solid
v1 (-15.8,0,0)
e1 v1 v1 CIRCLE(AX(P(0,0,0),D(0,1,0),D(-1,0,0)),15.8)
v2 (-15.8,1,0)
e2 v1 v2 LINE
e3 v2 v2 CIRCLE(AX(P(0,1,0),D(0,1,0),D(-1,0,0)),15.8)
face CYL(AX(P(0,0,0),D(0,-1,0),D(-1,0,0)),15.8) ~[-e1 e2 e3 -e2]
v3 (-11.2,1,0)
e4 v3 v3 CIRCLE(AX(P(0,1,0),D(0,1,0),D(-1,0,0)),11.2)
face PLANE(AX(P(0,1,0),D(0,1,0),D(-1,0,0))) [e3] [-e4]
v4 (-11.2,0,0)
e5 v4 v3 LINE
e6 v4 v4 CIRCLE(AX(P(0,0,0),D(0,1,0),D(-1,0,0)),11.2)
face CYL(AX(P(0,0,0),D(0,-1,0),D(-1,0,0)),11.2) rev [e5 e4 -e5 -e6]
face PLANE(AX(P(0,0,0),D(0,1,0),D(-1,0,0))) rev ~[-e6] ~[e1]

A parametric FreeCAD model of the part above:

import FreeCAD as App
import Part
import Sketcher
from FreeCAD import Vector

doc = App.newDocument("Part")
body = doc.addObject("PartDesign::Body", "Body")

# Sketch on XZ plane
sketch1 = doc.addObject("Sketcher::SketchObject", "Sketch")
body.addObject(sketch1)
sketch1.AttachmentSupport = (doc.XZ_Plane, [""])
sketch1.MapMode = "FlatFace"
sketch1.addGeometry(Part.Circle(Vector(0, 0, 0), Vector(0, 0, 1), 15.8), False)
sketch1.addGeometry(Part.Circle(Vector(0, 0, 0), Vector(0, 0, 1), 11.2), False)
sketch1.addConstraint(Sketcher.Constraint("Coincident", 0, 3, -1, 1))
sketch1.addConstraint(Sketcher.Constraint("Coincident", 1, 3, -1, 1))
sketch1.addConstraint(Sketcher.Constraint("Diameter", 0, 31.6))
sketch1.addConstraint(Sketcher.Constraint("Diameter", 1, 22.4))
pad1 = doc.addObject("PartDesign::Pad", "Pad")
body.addObject(pad1)
pad1.Profile = sketch1
pad1.Length = 1
pad1.Reversed = True

doc.recompute()
